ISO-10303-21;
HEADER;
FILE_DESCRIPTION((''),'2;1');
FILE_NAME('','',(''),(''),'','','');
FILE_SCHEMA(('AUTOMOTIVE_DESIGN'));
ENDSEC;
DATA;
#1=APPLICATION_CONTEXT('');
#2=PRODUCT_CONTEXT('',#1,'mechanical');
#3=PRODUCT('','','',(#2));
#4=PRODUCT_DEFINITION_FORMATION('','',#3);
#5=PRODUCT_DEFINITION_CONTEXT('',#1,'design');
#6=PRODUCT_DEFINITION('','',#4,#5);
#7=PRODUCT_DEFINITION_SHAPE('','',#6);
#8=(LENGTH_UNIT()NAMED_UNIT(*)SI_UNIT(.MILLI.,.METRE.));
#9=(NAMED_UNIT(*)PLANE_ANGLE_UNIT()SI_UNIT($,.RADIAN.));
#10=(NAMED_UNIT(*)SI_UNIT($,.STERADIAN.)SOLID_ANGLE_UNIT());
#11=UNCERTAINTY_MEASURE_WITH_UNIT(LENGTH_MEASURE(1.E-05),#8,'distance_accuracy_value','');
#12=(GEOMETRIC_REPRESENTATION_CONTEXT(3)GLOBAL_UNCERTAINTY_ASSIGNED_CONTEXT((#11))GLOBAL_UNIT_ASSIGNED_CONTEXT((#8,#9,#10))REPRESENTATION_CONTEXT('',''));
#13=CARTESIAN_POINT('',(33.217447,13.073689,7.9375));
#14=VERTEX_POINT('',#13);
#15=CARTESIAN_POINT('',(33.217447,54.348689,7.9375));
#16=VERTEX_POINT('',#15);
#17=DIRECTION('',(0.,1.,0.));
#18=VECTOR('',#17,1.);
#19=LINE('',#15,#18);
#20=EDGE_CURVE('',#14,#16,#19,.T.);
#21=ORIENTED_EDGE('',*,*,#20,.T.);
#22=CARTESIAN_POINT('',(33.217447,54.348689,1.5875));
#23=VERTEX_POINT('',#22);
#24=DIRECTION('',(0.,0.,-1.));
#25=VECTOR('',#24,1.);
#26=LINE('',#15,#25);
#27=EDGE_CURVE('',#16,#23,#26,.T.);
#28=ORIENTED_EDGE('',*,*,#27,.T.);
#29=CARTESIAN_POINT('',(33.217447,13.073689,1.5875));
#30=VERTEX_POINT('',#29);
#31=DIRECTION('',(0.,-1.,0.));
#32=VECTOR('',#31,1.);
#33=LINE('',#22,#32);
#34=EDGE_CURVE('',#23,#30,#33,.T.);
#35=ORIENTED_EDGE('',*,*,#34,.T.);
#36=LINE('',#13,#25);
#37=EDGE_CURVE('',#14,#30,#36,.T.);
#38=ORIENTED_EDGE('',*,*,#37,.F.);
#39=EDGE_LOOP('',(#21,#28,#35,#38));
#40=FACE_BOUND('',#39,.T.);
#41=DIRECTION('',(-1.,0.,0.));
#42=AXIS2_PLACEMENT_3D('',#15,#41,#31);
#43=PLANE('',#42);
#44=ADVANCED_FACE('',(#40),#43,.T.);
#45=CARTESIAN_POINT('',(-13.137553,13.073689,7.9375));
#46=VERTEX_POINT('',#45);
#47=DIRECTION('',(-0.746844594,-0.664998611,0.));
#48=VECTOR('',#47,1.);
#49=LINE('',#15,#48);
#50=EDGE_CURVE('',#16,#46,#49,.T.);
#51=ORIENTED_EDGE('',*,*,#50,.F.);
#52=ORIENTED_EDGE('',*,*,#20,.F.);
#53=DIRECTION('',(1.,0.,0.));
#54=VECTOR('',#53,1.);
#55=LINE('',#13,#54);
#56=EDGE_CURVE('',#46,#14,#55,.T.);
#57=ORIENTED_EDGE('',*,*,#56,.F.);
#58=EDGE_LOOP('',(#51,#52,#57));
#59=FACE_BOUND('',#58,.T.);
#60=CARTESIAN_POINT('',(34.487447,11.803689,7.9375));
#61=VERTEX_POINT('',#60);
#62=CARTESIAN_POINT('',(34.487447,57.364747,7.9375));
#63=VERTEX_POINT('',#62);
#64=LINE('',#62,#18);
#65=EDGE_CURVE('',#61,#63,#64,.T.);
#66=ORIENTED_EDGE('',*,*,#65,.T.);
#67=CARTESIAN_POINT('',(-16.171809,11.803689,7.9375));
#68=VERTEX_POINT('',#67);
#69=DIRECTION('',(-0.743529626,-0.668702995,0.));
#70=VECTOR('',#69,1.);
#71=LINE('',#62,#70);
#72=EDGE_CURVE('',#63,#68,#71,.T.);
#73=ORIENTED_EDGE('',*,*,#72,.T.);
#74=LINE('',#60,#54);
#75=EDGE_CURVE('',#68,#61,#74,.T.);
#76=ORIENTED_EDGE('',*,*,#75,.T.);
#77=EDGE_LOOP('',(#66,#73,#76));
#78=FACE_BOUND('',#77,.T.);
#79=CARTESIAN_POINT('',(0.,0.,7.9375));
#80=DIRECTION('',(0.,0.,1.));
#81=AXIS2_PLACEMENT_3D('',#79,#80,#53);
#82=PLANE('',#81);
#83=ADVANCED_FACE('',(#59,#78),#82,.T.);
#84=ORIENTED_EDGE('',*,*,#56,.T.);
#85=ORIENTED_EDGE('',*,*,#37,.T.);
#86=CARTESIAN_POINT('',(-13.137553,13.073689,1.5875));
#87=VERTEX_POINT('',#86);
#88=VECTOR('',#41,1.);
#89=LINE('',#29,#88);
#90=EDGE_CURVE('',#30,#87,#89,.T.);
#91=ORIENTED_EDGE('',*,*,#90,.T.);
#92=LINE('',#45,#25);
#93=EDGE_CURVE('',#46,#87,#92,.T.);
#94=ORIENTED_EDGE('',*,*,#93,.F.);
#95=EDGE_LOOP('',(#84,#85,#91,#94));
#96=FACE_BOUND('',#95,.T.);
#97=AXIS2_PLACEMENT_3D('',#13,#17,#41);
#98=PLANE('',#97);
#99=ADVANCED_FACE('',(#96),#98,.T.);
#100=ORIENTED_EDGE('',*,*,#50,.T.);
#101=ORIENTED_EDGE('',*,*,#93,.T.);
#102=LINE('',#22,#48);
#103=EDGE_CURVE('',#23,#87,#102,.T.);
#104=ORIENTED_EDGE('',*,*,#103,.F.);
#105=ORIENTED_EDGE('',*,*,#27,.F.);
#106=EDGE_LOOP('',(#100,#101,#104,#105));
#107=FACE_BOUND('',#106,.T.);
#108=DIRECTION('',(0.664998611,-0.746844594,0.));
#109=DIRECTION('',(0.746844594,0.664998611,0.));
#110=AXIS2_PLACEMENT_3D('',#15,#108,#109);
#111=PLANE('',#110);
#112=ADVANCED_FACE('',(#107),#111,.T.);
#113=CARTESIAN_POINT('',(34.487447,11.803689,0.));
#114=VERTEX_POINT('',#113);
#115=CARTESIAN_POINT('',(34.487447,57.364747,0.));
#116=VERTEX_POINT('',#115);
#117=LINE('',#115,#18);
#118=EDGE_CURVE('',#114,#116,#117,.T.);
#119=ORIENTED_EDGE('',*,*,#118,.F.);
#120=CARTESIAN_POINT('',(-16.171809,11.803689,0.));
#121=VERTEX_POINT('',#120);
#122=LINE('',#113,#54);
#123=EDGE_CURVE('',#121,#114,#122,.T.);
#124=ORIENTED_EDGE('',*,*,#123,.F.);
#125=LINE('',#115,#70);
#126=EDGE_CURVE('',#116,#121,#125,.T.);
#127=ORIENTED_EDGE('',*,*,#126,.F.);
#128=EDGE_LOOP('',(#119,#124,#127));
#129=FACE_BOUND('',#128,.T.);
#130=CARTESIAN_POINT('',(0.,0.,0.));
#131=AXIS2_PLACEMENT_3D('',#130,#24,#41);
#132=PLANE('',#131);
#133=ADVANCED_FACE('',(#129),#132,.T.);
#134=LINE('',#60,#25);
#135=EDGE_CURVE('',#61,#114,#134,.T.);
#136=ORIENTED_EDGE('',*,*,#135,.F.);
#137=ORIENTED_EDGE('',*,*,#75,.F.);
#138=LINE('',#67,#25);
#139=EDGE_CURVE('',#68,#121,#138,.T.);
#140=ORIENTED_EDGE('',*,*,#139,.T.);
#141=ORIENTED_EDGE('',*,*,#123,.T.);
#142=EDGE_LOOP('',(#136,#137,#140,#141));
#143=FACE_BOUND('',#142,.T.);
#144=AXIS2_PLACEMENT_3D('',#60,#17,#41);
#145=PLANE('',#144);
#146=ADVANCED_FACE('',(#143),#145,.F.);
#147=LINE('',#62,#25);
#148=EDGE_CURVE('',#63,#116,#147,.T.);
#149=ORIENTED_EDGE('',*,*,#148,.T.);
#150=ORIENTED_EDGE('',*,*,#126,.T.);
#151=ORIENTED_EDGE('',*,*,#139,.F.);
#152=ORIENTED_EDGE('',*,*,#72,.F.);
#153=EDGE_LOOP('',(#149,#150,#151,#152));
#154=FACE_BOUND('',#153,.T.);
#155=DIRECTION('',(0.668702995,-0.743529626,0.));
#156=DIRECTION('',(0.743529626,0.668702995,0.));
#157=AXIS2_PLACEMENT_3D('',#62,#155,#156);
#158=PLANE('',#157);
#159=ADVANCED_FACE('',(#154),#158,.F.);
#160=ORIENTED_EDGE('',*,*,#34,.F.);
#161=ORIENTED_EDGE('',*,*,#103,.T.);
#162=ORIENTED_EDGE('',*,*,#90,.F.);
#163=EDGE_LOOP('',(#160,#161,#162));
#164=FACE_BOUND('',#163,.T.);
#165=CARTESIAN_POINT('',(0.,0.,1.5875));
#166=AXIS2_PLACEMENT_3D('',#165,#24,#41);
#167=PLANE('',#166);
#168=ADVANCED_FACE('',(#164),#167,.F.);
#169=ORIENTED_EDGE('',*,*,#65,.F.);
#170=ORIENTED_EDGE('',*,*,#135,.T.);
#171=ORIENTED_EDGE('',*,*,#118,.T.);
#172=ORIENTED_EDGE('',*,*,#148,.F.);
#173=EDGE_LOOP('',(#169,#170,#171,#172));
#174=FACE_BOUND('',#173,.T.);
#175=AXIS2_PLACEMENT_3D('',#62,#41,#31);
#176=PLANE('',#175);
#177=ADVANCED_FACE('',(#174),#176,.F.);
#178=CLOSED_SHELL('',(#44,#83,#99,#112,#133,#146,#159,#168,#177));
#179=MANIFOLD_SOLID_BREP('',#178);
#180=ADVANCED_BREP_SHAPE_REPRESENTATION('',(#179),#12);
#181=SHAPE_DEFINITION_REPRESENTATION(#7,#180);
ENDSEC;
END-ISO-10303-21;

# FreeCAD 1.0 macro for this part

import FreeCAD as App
import Part
import Sketcher

V = App.Vector
Q = App.Units.Quantity


def add_polygon(sketch, points):
    """Adds a closed chain of lines whose ends are joined by coincident constraints."""
    first, n = sketch.GeometryCount, len(points)
    for a, b in zip(points, points[1:] + points[:1]):
        sketch.addGeometry(Part.LineSegment(App.Vector(*a, 0), App.Vector(*b, 0)), False)
    for i in range(n):
        sketch.addConstraint(Sketcher.Constraint("Coincident", first + i, 2, first + (i + 1) % n, 1))

doc = App.newDocument("Part")
body = doc.addObject("PartDesign::Body", "Body")

# Sketch on XY plane
sketch1 = doc.addObject("Sketcher::SketchObject", "Sketch")
body.addObject(sketch1)
sketch1.AttachmentSupport = (doc.XY_Plane, [""])
sketch1.MapMode = "FlatFace"
add_polygon(sketch1, [(33, 13), (33, 54), (-13, 13)])  # lines 0-2
sketch1.addConstraint([
    Sketcher.Constraint("Vertical", 0),
    Sketcher.Constraint("Horizontal", 2),
    Sketcher.Constraint("DistanceX", 2, 1, 2, 2, Q("1.825 in")),
    Sketcher.Constraint("DistanceY", 0, 1, 0, 2, Q("1.625 in")),
    Sketcher.Constraint("DistanceY", -1, 1, 0, 2, 54.348689),
    Sketcher.Constraint("DistanceX", -1, 1, 0, 2, 33.217447),
])
pad1 = doc.addObject("PartDesign::Pad", "Pad")
body.addObject(pad1)
pad1.Profile = sketch1
pad1.Length = Q("0.0625 in")

# Sketch on XY plane
sketch2 = doc.addObject("Sketcher::SketchObject", "Sketch001")
body.addObject(sketch2)
sketch2.AttachmentSupport = (doc.XY_Plane, [""])
sketch2.MapMode = "FlatFace"
add_polygon(sketch2, [(34, 12), (34, 57), (-16, 12)])  # lines 0-2
add_polygon(sketch2, [(33, 54), (33, 13), (-13, 13)])  # lines 3-5
sketch2.addConstraint([
    Sketcher.Constraint("Vertical", 0),
    Sketcher.Constraint("Horizontal", 2),
    Sketcher.Constraint("Vertical", 3),
    Sketcher.Constraint("Horizontal", 4),
    Sketcher.Constraint("DistanceX", 4, 2, 4, 1, Q("1.825 in")),
    Sketcher.Constraint("DistanceY", 3, 2, 3, 1, Q("1.625 in")),
    Sketcher.Constraint("DistanceX", 3, 2, 2, 2, Q("0.05 in")),
    Sketcher.Constraint("DistanceY", 2, 2, 3, 2, Q("0.05 in")),
    Sketcher.Constraint("DistanceX", 2, 1, 2, 2, 50.659256),
    Sketcher.Constraint("DistanceY", 0, 1, 0, 2, 45.561058),
    Sketcher.Constraint("DistanceX", 1, 2, -1, 1, 16.171809),
    Sketcher.Constraint("DistanceY", -1, 1, 1, 2, 11.803689),
])
pad2 = doc.addObject("PartDesign::Pad", "Pad001")
body.addObject(pad2)
pad2.Profile = sketch2
pad2.Length = Q("0.3125 in")

doc.recompute()
